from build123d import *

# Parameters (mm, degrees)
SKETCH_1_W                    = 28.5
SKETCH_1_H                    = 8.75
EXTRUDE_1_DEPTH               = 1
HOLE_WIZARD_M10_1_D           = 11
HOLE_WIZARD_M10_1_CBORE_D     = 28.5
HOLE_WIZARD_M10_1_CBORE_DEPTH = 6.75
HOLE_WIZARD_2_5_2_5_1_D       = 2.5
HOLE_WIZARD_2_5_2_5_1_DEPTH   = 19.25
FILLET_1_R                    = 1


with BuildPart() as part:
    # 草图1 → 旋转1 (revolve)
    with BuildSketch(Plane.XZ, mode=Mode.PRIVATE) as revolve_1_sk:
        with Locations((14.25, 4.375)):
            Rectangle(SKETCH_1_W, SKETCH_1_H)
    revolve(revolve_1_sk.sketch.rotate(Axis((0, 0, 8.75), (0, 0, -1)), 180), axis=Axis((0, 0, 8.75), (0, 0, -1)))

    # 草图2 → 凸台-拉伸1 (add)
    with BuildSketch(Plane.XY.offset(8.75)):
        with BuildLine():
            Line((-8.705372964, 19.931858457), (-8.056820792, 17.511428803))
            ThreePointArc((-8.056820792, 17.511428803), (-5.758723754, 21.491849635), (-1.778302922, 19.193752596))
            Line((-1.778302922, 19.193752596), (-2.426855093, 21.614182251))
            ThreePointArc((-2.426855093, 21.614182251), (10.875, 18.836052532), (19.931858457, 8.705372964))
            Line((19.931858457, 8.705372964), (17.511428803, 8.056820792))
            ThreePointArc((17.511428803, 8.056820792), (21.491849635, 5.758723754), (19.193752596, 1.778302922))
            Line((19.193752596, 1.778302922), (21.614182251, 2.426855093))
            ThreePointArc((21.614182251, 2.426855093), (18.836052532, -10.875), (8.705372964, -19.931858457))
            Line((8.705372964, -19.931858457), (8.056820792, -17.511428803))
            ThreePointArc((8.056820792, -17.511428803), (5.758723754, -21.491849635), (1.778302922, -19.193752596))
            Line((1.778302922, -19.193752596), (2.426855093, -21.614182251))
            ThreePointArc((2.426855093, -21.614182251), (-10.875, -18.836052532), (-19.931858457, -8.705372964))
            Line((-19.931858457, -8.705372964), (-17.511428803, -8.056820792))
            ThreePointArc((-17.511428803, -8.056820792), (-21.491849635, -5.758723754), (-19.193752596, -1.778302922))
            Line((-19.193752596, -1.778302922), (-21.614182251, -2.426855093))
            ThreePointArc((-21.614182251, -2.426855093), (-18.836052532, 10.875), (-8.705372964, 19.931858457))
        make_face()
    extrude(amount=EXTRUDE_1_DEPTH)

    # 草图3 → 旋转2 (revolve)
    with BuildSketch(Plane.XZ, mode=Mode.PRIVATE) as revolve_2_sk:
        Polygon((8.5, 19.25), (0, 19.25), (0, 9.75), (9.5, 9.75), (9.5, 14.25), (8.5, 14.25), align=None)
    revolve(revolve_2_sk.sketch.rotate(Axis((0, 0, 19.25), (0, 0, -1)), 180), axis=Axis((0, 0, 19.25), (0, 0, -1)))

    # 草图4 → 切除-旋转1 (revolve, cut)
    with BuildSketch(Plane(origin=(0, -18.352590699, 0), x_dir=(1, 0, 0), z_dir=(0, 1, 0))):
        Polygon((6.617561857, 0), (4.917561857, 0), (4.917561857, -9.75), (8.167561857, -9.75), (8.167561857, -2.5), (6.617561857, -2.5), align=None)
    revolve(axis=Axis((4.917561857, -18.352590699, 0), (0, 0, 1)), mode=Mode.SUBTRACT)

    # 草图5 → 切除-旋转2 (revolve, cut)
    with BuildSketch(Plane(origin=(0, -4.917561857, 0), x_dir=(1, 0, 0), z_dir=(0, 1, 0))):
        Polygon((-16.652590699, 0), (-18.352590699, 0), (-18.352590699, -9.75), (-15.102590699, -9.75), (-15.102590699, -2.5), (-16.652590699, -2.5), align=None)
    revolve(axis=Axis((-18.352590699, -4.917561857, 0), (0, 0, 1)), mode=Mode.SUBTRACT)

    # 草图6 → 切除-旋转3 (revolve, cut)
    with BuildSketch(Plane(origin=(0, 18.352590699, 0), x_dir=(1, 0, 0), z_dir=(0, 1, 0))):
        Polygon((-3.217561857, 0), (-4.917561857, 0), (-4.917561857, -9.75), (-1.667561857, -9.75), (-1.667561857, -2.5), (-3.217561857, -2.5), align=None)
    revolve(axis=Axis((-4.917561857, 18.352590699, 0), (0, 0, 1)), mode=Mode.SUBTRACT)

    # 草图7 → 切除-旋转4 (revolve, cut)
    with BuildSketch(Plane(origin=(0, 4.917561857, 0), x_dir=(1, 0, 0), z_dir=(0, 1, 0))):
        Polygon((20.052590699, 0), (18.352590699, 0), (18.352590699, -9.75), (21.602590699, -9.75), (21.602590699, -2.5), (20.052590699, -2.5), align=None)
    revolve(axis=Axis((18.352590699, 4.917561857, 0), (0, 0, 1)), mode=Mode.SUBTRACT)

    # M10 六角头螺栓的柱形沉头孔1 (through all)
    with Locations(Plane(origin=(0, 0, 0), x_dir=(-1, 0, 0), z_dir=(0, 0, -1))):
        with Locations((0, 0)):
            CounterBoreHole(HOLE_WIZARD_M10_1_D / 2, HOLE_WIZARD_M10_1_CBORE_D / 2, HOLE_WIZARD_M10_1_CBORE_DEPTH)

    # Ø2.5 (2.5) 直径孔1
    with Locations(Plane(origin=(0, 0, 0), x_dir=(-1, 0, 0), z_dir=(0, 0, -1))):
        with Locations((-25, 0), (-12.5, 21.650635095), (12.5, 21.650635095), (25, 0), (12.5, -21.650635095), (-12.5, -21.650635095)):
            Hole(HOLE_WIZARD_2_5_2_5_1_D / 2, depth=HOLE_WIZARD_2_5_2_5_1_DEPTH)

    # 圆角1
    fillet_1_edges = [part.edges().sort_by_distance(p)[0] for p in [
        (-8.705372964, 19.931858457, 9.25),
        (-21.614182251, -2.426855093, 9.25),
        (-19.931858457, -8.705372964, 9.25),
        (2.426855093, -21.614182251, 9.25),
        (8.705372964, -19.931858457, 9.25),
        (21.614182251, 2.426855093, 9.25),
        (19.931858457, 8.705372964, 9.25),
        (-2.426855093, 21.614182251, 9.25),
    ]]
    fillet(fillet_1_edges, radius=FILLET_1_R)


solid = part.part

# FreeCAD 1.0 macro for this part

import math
import FreeCAD as App
import Part
import Sketcher
Q = App.Units.Quantity


def edges_at(feature, points):
    """Names of the edges that pass closest to the given points."""
    edges = feature.Shape.Edges
    near = lambda p: min(range(len(edges)), key=lambda i: edges[i].distToShape(Part.Vertex(*p))[0])
    return sorted({f"Edge{near(p) + 1}" for p in points})


def add_polygon(sketch, points):
    """Adds a closed chain of lines whose ends are joined by coincident constraints."""
    first, n = sketch.GeometryCount, len(points)
    for a, b in zip(points, points[1:] + points[:1]):
        sketch.addGeometry(Part.LineSegment(App.Vector(*a, 0), App.Vector(*b, 0)), False)
    for i in range(n):
        sketch.addConstraint(Sketcher.Constraint("Coincident", first + i, 2, first + (i + 1) % n, 1))

doc = App.newDocument("Part")
body = doc.addObject("PartDesign::Body", "Body")

# Sketch on XZ plane
sketch1 = body.newObject("Sketcher::SketchObject", "Sketch")
sketch1.AttachmentSupport = (doc.getObject("XZ_Plane"), [""])
sketch1.MapMode = "FlatFace"
add_polygon(sketch1, [(0, 9), (0, 0), (28, 0), (28, 9)])  # lines 0-3
sketch1.addConstraint([
    Sketcher.Constraint("Vertical", 0),
    Sketcher.Constraint("Horizontal", 1),
    Sketcher.Constraint("Vertical", 2),
    Sketcher.Constraint("Horizontal", 3),
    Sketcher.Constraint("Coincident", 0, 2, -1, 1),
    Sketcher.Constraint("DistanceX", 1, 1, 1, 2, 28.5),
    Sketcher.Constraint("DistanceY", 0, 2, 0, 1, 8.75),
])
revolution = body.newObject("PartDesign::Revolution", "Revolution")
revolution.Profile = sketch1
revolution.ReferenceAxis = (sketch1, ["V_Axis"])
revolution.Angle = 360

# Sketch on XY plane
sketch2 = body.newObject("Sketcher::SketchObject", "Sketch001")
sketch2.AttachmentSupport = (doc.getObject("XY_Plane"), [""])
sketch2.MapMode = "FlatFace"
sketch2.AttachmentOffset = App.Placement(App.Vector(0, 0, 8.75), App.Rotation())
sketch2.addGeometry([
    Part.LineSegment(App.Vector(-8.1, 17.5, 0), App.Vector(-8.7, 19.9, 0)),  # 0
    Part.ArcOfCircle(Part.Circle(App.Vector(0, 0, 0), App.Vector(0, 0, 1), 21.8), math.radians(114), math.radians(186)),  # 1
    Part.LineSegment(App.Vector(-21.6, -2.4, 0), App.Vector(-19.2, -1.8, 0)),  # 2
    Part.ArcOfCircle(Part.Circle(App.Vector(-18.4, -4.9, 0), App.Vector(0, 0, 1), 3.2), math.radians(105), math.radians(285)),  # 3
    Part.LineSegment(App.Vector(-17.5, -8.1, 0), App.Vector(-19.9, -8.7, 0)),  # 4
    Part.ArcOfCircle(Part.Circle(App.Vector(0, 0, 0), App.Vector(0, 0, 1), 21.8), math.radians(-156), math.radians(-84)),  # 5
    Part.LineSegment(App.Vector(2.4, -21.6, 0), App.Vector(1.8, -19.2, 0)),  # 6
    Part.ArcOfCircle(Part.Circle(App.Vector(4.9, -18.4, 0), App.Vector(0, 0, 1), 3.2), math.radians(-165), math.radians(15)),  # 7
    Part.LineSegment(App.Vector(8.1, -17.5, 0), App.Vector(8.7, -19.9, 0)),  # 8
    Part.ArcOfCircle(Part.Circle(App.Vector(0, 0, 0), App.Vector(0, 0, 1), 21.8), math.radians(-66), math.radians(6)),  # 9
    Part.LineSegment(App.Vector(21.6, 2.4, 0), App.Vector(19.2, 1.8, 0)),  # 10
    Part.ArcOfCircle(Part.Circle(App.Vector(18.4, 4.9, 0), App.Vector(0, 0, 1), 3.2), math.radians(-75), math.radians(105)),  # 11
    Part.LineSegment(App.Vector(17.5, 8.1, 0), App.Vector(19.9, 8.7, 0)),  # 12
    Part.ArcOfCircle(Part.Circle(App.Vector(0, 0, 0), App.Vector(0, 0, 1), 21.8), math.radians(24), math.radians(96)),  # 13
    Part.LineSegment(App.Vector(-2.4, 21.6, 0), App.Vector(-1.8, 19.2, 0)),  # 14
    Part.ArcOfCircle(Part.Circle(App.Vector(-4.9, 18.4, 0), App.Vector(0, 0, 1), 3.2), math.radians(15), math.radians(195)),  # 15
], False)
sketch2.addConstraint([
    Sketcher.Constraint("Coincident", 0, 2, 1, 1),
    Sketcher.Constraint("Coincident", 1, 2, 2, 1),
    Sketcher.Constraint("Tangent", 2, 2, 3, 1),
    Sketcher.Constraint("Tangent", 3, 2, 4, 1),
    Sketcher.Constraint("Coincident", 4, 2, 5, 1),
    Sketcher.Constraint("Coincident", 5, 2, 6, 1),
    Sketcher.Constraint("Tangent", 6, 2, 7, 1),
    Sketcher.Constraint("Tangent", 7, 2, 8, 1),
    Sketcher.Constraint("Coincident", 8, 2, 9, 1),
    Sketcher.Constraint("Coincident", 9, 2, 10, 1),
    Sketcher.Constraint("Tangent", 10, 2, 11, 1),
    Sketcher.Constraint("Tangent", 11, 2, 12, 1),
    Sketcher.Constraint("Coincident", 12, 2, 13, 1),
    Sketcher.Constraint("Coincident", 13, 2, 14, 1),
    Sketcher.Constraint("Tangent", 14, 2, 15, 1),
    Sketcher.Constraint("Tangent", 15, 2, 0, 1),
    Sketcher.Constraint("Coincident", 1, 3, -1, 1),
    Sketcher.Constraint("Coincident", 5, 3, -1, 1),
    Sketcher.Constraint("Coincident", 9, 3, -1, 1),
    Sketcher.Constraint("Coincident", 13, 3, -1, 1),
    Sketcher.Constraint("Equal", 1, 5),
    Sketcher.Constraint("Equal", 3, 7),
    Sketcher.Constraint("Equal", 5, 9),
    Sketcher.Constraint("Equal", 7, 11),
    Sketcher.Constraint("Equal", 9, 13),
    Sketcher.Constraint("Equal", 11, 15),
    Sketcher.Constraint("Symmetric", 3, 3, 11, 3, -1, 1),
    Sketcher.Constraint("Symmetric", 7, 3, 15, 3, -1, 1),
    Sketcher.Constraint("Perpendicular", 0, 2),
    Sketcher.Constraint("Parallel", 2, 4),
    Sketcher.Constraint("Perpendicular", 4, 6),
    Sketcher.Constraint("Parallel", 6, 8),
    Sketcher.Constraint("Perpendicular", 8, 10),
    Sketcher.Constraint("Parallel", 10, 12),
    Sketcher.Constraint("Perpendicular", 12, 14),
    Sketcher.Constraint("Equal", 0, 2),
    Sketcher.Constraint("Equal", 2, 4),
    Sketcher.Constraint("Equal", 4, 6),
    Sketcher.Constraint("Angle", 0, Q("105 deg")),
    Sketcher.Constraint("Radius", 1, 21.75),
    Sketcher.Constraint("Radius", 3, 3.25),
    Sketcher.Constraint("DistanceX", 3, 3, -1, 1, 18.352591),
])
pad1 = body.newObject("PartDesign::Pad", "Pad")
pad1.Profile = sketch2
pad1.Length = 1

# Sketch on XZ plane
sketch3 = body.newObject("Sketcher::SketchObject", "Sketch002")
sketch3.AttachmentSupport = (doc.getObject("XZ_Plane"), [""])
sketch3.MapMode = "FlatFace"
add_polygon(sketch3, [(8.5, 19.2), (0, 19.2), (0, 9.8), (9.5, 9.8), (9.5, 14.2), (8.5, 14.2)])  # lines 0-5
sketch3.addConstraint([
    Sketcher.Constraint("Horizontal", 0),
    Sketcher.Constraint("Vertical", 1),
    Sketcher.Constraint("Horizontal", 2),
    Sketcher.Constraint("Vertical", 3),
    Sketcher.Constraint("Horizontal", 4),
    Sketcher.Constraint("Vertical", 5),
    Sketcher.Constraint("PointOnObject", 0, 2, -2),
    Sketcher.Constraint("Equal", 2, 1),
    Sketcher.Constraint("DistanceX", 4, 2, 4, 1, 1.0),
    Sketcher.Constraint("DistanceY", 5, 1, 5, 2, 5.0),
    Sketcher.Constraint("DistanceX", 0, 2, 0, 1, 8.5),
    Sketcher.Constraint("DistanceY", -1, 1, 0, 2, 19.25),
])
revolution2 = body.newObject("PartDesign::Revolution", "Revolution001")
revolution2.Profile = sketch3
revolution2.ReferenceAxis = (sketch3, ["V_Axis"])
revolution2.Angle = 360

# Sketch on XZ plane
sketch4 = body.newObject("Sketcher::SketchObject", "Sketch003")
sketch4.AttachmentSupport = (doc.getObject("XZ_Plane"), [""])
sketch4.MapMode = "FlatFace"
sketch4.AttachmentOffset = App.Placement(App.Vector(0, 0, 18.352591), App.Rotation())
add_polygon(sketch4, [(6.6, 0), (4.9, 0), (4.9, 9.8), (8.2, 9.8), (8.2, 2.5), (6.6, 2.5)])  # lines 0-5
sketch4.addGeometry(Part.LineSegment(App.Vector(4.9, 0, 0), App.Vector(4.9, 9.8, 0)), True)  # axis
sketch4.addConstraint([
    Sketcher.Constraint("Horizontal", 0),
    Sketcher.Constraint("Vertical", 1),
    Sketcher.Constraint("Horizontal", 2),
    Sketcher.Constraint("Vertical", 3),
    Sketcher.Constraint("Horizontal", 4),
    Sketcher.Constraint("Vertical", 5),
    Sketcher.Constraint("Vertical", 6),
    Sketcher.Constraint("Coincident", 6, 1, 0, 2),
    Sketcher.Constraint("PointOnObject", 0, 2, -1),
    Sketcher.Constraint("Horizontal", 2, 2, 6, 2),
    Sketcher.Constraint("DistanceX", 0, 2, 0, 1, 1.7),
    Sketcher.Constraint("DistanceY", 5, 2, 5, 1, 2.5),
    Sketcher.Constraint("DistanceX", 2, 1, 2, 2, 3.25),
    Sketcher.Constraint("DistanceY", 1, 1, 1, 2, 9.75),
    Sketcher.Constraint("DistanceX", -1, 1, 0, 2, 4.917562),
])
groove = body.newObject("PartDesign::Groove", "Groove")
groove.Profile = sketch4
groove.ReferenceAxis = (sketch4, ["Axis0"])
groove.Angle = 360

# Sketch on XZ plane
sketch5 = body.newObject("Sketcher::SketchObject", "Sketch004")
sketch5.AttachmentSupport = (doc.getObject("XZ_Plane"), [""])
sketch5.MapMode = "FlatFace"
sketch5.AttachmentOffset = App.Placement(App.Vector(0, 0, 4.917562), App.Rotation())
add_polygon(sketch5, [(-16.7, 0), (-18.4, 0), (-18.4, 9.8), (-15.1, 9.8), (-15.1, 2.5), (-16.7, 2.5)])  # lines 0-5
sketch5.addGeometry(Part.LineSegment(App.Vector(-18.4, 0, 0), App.Vector(-18.4, 9.8, 0)), True)  # axis
sketch5.addConstraint([
    Sketcher.Constraint("Horizontal", 0),
    Sketcher.Constraint("Vertical", 1),
    Sketcher.Constraint("Horizontal", 2),
    Sketcher.Constraint("Vertical", 3),
    Sketcher.Constraint("Horizontal", 4),
    Sketcher.Constraint("Vertical", 5),
    Sketcher.Constraint("Vertical", 6),
    Sketcher.Constraint("Coincident", 6, 1, 0, 2),
    Sketcher.Constraint("PointOnObject", 0, 2, -1),
    Sketcher.Constraint("Horizontal", 2, 2, 6, 2),
    Sketcher.Constraint("DistanceX", 0, 2, 0, 1, 1.7),
    Sketcher.Constraint("DistanceY", 5, 2, 5, 1, 2.5),
    Sketcher.Constraint("DistanceX", 2, 1, 2, 2, 3.25),
    Sketcher.Constraint("DistanceY", 1, 1, 1, 2, 9.75),
    Sketcher.Constraint("DistanceX", 0, 2, -1, 1, 18.352591),
])
groove2 = body.newObject("PartDesign::Groove", "Groove001")
groove2.Profile = sketch5
groove2.ReferenceAxis = (sketch5, ["Axis0"])
groove2.Angle = 360

# Sketch on XZ plane
sketch6 = body.newObject("Sketcher::SketchObject", "Sketch005")
sketch6.AttachmentSupport = (doc.getObject("XZ_Plane"), [""])
sketch6.MapMode = "FlatFace"
sketch6.AttachmentOffset = App.Placement(App.Vector(0, 0, -18.352591), App.Rotation())
add_polygon(sketch6, [(-3.2, 0), (-4.9, 0), (-4.9, 9.8), (-1.7, 9.8), (-1.7, 2.5), (-3.2, 2.5)])  # lines 0-5
sketch6.addGeometry(Part.LineSegment(App.Vector(-4.9, 0, 0), App.Vector(-4.9, 9.8, 0)), True)  # axis
sketch6.addConstraint([
    Sketcher.Constraint("Horizontal", 0),
    Sketcher.Constraint("Vertical", 1),
    Sketcher.Constraint("Horizontal", 2),
    Sketcher.Constraint("Vertical", 3),
    Sketcher.Constraint("Horizontal", 4),
    Sketcher.Constraint("Vertical", 5),
    Sketcher.Constraint("Vertical", 6),
    Sketcher.Constraint("Coincident", 6, 1, 0, 2),
    Sketcher.Constraint("PointOnObject", 0, 2, -1),
    Sketcher.Constraint("Horizontal", 2, 2, 6, 2),
    Sketcher.Constraint("DistanceX", 0, 2, 0, 1, 1.7),
    Sketcher.Constraint("DistanceY", 5, 2, 5, 1, 2.5),
    Sketcher.Constraint("DistanceX", 2, 1, 2, 2, 3.25),
    Sketcher.Constraint("DistanceY", 1, 1, 1, 2, 9.75),
    Sketcher.Constraint("DistanceX", 0, 2, -1, 1, 4.917562),
])
groove3 = body.newObject("PartDesign::Groove", "Groove002")
groove3.Profile = sketch6
groove3.ReferenceAxis = (sketch6, ["Axis0"])
groove3.Angle = 360

# Sketch on XZ plane
sketch7 = body.newObject("Sketcher::SketchObject", "Sketch006")
sketch7.AttachmentSupport = (doc.getObject("XZ_Plane"), [""])
sketch7.MapMode = "FlatFace"
sketch7.AttachmentOffset = App.Placement(App.Vector(0, 0, -4.917562), App.Rotation())
add_polygon(sketch7, [(20.1, 0), (18.4, 0), (18.4, 9.8), (21.6, 9.8), (21.6, 2.5), (20.1, 2.5)])  # lines 0-5
sketch7.addGeometry(Part.LineSegment(App.Vector(18.4, 0, 0), App.Vector(18.4, 9.8, 0)), True)  # axis
sketch7.addConstraint([
    Sketcher.Constraint("Horizontal", 0),
    Sketcher.Constraint("Vertical", 1),
    Sketcher.Constraint("Horizontal", 2),
    Sketcher.Constraint("Vertical", 3),
    Sketcher.Constraint("Horizontal", 4),
    Sketcher.Constraint("Vertical", 5),
    Sketcher.Constraint("Vertical", 6),
    Sketcher.Constraint("Coincident", 6, 1, 0, 2),
    Sketcher.Constraint("PointOnObject", 0, 2, -1),
    Sketcher.Constraint("Horizontal", 2, 2, 6, 2),
    Sketcher.Constraint("DistanceX", 0, 2, 0, 1, 1.7),
    Sketcher.Constraint("DistanceY", 5, 2, 5, 1, 2.5),
    Sketcher.Constraint("DistanceX", 2, 1, 2, 2, 3.25),
    Sketcher.Constraint("DistanceY", 1, 1, 1, 2, 9.75),
    Sketcher.Constraint("DistanceX", -1, 1, 0, 2, 18.352591),
])
groove4 = body.newObject("PartDesign::Groove", "Groove003")
groove4.Profile = sketch7
groove4.ReferenceAxis = (sketch7, ["Axis0"])
groove4.Angle = 360

# Sketch on XY plane
sketch8 = body.newObject("Sketcher::SketchObject", "Sketch007")
sketch8.AttachmentSupport = (doc.getObject("XY_Plane"), [""])
sketch8.MapMode = "FlatFace"
sketch8.addGeometry(Part.Circle(App.Vector(0, 0, 0), App.Vector(0, 0, 1), 6), False)
sketch8.addConstraint([
    Sketcher.Constraint("Coincident", 0, 3, -1, 1),
    Sketcher.Constraint("Diameter", 0, 11.0),
])
doc.recompute()
hole = body.newObject("PartDesign::Hole", "Hole")
hole.Profile = sketch8
hole.ThreadType = "None"
hole.Diameter = 11
hole.DepthType = "ThroughAll"
hole.HoleCutType = "Counterbore"
hole.HoleCutDiameter = 28.5
hole.HoleCutDepth = 6.75
hole.Reversed = True

# Sketch on XY plane
sketch9 = body.newObject("Sketcher::SketchObject", "Sketch008")
sketch9.AttachmentSupport = (doc.getObject("XY_Plane"), [""])
sketch9.MapMode = "FlatFace"
sketch9.addGeometry([
    Part.Circle(App.Vector(25, 0, 0), App.Vector(0, 0, 1), 1.2),  # 0
    Part.Circle(App.Vector(12.5, 21.7, 0), App.Vector(0, 0, 1), 1.2),  # 1
    Part.Circle(App.Vector(-12.5, 21.7, 0), App.Vector(0, 0, 1), 1.2),  # 2
    Part.Circle(App.Vector(-25, 0, 0), App.Vector(0, 0, 1), 1.2),  # 3
    Part.Circle(App.Vector(-12.5, -21.7, 0), App.Vector(0, 0, 1), 1.2),  # 4
    Part.Circle(App.Vector(12.5, -21.7, 0), App.Vector(0, 0, 1), 1.2),  # 5
], False)
sketch9.addConstraint([
    Sketcher.Constraint("Equal", 0, 1),
    Sketcher.Constraint("Equal", 1, 2),
    Sketcher.Constraint("Equal", 2, 3),
    Sketcher.Constraint("Equal", 3, 4),
    Sketcher.Constraint("Equal", 4, 5),
    Sketcher.Constraint("Symmetric", 0, 3, 3, 3, -1, 1),
    Sketcher.Constraint("Symmetric", 1, 3, 4, 3, -1, 1),
    Sketcher.Constraint("Symmetric", 2, 3, 5, 3, -1, 1),
    Sketcher.Constraint("Symmetric", 1, 3, 2, 3, -2),
    Sketcher.Constraint("PointOnObject", 0, 3, -1),
    Sketcher.Constraint("Diameter", 0, 2.5),
    Sketcher.Constraint("DistanceX", -1, 1, 0, 3, 25.0),
    Sketcher.Constraint("DistanceX", 2, 3, 1, 3, 25.0),
    Sketcher.Constraint("DistanceY", 4, 3, 2, 3, 43.30127),
])
doc.recompute()
hole2 = body.newObject("PartDesign::Hole", "Hole001")
hole2.Profile = sketch9
hole2.ThreadType = "None"
hole2.Diameter = 2.5
hole2.DepthType = "Dimension"
hole2.Depth = 19.25
hole2.DrillPoint = "Flat"
hole2.Reversed = True
doc.recompute()

fillet = body.newObject("PartDesign::Fillet", "Fillet")
fillet.Base = (hole2, edges_at(hole2, [
    (-8.705, 19.932, 9.25),
    (-21.614, -2.427, 9.25),
    (-19.932, -8.705, 9.25),
    (2.427, -21.614, 9.25),
    (8.705, -19.932, 9.25),
    (21.614, 2.427, 9.25),
    (19.932, 8.705, 9.25),
    (-2.427, 21.614, 9.25),
]))
fillet.Radius = 1

doc.recompute()
